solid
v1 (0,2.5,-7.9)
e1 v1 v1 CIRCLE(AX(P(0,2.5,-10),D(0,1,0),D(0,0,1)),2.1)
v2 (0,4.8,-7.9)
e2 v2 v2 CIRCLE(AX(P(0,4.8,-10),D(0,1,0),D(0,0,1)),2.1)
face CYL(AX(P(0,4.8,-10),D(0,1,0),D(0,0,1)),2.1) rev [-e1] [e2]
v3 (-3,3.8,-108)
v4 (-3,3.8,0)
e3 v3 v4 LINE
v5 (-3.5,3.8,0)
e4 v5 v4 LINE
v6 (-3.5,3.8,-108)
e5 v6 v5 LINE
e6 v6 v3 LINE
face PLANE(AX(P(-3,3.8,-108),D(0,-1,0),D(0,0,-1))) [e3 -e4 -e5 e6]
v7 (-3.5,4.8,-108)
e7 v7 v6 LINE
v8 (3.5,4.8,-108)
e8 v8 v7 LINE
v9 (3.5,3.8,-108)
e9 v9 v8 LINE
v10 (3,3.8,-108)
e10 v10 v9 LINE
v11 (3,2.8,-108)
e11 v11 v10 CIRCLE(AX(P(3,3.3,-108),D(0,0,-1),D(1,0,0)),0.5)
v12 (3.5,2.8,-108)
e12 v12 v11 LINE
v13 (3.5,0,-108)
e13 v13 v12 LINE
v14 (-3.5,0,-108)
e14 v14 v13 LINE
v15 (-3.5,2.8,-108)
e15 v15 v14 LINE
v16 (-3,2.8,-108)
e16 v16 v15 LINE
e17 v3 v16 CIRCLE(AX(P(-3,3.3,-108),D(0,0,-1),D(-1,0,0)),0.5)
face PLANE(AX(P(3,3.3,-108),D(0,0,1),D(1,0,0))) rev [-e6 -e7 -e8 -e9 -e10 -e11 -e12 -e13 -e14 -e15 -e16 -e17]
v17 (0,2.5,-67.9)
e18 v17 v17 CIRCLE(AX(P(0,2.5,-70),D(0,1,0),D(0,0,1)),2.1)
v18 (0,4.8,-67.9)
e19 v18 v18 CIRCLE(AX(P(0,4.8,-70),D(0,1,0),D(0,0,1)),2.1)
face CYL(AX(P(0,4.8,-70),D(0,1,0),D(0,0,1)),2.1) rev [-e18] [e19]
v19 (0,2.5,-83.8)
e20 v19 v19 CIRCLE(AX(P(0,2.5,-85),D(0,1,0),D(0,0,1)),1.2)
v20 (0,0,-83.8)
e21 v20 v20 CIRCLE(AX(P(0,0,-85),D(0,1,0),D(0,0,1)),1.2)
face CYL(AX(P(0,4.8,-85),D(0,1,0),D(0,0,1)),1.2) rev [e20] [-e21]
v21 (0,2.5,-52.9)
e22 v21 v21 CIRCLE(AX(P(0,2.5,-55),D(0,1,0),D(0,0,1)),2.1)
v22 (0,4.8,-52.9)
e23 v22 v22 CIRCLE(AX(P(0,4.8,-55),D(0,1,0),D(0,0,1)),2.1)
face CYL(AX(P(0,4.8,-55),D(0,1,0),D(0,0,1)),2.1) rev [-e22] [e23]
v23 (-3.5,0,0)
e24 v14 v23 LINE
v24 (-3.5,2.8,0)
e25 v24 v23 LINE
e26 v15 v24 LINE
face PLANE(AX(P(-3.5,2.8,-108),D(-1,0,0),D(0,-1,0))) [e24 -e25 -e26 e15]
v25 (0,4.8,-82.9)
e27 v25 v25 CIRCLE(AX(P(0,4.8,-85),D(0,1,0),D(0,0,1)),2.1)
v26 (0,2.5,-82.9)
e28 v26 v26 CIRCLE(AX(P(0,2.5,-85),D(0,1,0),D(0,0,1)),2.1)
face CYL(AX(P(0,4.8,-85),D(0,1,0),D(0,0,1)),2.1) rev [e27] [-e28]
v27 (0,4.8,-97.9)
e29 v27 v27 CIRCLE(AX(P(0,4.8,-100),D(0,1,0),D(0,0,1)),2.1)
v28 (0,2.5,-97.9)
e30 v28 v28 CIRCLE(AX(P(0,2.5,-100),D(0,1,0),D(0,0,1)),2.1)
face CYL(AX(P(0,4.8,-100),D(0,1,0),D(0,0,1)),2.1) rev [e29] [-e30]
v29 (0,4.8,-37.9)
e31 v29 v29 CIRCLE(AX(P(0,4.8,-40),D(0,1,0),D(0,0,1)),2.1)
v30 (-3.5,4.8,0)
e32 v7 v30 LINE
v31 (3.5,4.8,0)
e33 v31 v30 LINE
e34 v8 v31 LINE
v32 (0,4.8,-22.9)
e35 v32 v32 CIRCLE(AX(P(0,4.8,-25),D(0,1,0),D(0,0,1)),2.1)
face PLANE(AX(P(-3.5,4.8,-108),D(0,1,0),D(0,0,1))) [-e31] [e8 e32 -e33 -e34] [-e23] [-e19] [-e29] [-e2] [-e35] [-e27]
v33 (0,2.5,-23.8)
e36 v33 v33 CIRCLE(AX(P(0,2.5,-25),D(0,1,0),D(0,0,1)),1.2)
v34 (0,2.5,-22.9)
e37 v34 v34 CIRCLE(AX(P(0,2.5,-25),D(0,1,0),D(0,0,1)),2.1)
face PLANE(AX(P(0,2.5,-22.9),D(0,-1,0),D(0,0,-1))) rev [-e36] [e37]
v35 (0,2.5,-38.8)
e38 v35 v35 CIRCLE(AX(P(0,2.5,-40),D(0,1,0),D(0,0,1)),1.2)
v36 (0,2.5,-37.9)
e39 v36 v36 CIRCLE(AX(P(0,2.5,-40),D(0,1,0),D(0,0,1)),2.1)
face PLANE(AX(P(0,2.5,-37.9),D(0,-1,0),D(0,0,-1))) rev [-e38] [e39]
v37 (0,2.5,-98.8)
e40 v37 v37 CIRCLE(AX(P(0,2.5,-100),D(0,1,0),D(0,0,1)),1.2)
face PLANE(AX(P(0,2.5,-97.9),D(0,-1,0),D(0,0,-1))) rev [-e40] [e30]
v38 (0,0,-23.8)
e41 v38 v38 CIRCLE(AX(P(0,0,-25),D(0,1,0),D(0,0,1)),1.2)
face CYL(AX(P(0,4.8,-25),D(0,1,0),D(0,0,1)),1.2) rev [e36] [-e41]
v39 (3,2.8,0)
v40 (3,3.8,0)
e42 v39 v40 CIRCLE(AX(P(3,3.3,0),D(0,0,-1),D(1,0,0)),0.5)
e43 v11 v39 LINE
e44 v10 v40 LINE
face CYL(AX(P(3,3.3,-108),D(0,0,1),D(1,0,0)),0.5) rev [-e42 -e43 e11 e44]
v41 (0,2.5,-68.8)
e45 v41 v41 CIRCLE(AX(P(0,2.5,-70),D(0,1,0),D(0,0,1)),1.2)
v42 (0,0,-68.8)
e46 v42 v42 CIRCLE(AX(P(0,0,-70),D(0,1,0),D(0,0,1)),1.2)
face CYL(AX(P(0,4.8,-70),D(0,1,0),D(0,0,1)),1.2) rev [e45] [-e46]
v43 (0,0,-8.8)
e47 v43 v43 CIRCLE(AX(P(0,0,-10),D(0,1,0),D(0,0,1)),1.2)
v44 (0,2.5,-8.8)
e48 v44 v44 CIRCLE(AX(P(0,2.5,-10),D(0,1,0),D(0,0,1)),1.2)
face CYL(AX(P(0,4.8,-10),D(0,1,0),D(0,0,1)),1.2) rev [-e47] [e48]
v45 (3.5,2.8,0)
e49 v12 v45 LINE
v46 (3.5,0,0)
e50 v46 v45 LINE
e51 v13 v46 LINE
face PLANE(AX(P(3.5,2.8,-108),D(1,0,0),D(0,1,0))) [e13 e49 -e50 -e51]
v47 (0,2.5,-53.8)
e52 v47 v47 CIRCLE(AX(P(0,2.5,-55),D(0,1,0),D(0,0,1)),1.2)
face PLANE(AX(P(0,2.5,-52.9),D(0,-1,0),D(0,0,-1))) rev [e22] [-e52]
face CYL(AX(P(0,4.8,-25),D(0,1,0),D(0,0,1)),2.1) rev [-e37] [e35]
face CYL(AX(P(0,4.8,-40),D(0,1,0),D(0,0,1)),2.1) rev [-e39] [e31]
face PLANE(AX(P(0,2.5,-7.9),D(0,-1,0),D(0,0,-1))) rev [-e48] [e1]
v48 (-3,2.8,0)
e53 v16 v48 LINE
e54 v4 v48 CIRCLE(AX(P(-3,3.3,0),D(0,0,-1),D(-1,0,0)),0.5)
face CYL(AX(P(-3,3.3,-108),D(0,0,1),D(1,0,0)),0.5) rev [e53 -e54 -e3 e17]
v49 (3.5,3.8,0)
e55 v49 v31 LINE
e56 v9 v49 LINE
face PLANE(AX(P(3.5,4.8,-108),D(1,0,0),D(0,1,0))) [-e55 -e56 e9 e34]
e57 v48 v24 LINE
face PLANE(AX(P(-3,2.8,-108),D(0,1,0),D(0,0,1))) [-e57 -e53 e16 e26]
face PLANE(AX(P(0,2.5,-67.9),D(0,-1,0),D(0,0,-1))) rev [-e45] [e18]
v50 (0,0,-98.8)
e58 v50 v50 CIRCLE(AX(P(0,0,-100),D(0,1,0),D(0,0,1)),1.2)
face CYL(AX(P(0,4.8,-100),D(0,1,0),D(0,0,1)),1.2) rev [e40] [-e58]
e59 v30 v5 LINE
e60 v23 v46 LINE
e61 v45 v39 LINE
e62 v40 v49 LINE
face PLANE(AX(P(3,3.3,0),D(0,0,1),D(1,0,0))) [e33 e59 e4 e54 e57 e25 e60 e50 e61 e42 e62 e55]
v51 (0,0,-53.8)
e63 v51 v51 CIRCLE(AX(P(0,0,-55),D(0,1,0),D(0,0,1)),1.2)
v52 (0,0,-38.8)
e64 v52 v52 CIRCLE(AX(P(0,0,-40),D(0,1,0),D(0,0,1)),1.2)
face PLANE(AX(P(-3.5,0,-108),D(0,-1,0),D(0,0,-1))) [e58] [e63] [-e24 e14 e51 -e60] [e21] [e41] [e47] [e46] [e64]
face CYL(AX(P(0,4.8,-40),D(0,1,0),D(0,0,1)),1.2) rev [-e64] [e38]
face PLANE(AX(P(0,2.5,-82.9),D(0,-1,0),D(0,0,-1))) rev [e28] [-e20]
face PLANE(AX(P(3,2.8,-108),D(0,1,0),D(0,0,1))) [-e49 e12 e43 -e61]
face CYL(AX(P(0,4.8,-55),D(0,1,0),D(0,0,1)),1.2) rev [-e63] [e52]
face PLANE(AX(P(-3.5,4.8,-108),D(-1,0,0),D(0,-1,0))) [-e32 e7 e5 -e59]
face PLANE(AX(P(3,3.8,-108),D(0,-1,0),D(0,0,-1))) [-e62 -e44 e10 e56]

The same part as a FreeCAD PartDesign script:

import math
import FreeCAD as App
import Part
import Sketcher

V = App.Vector
Q = App.Units.Quantity

doc = App.newDocument("Part")
body = doc.addObject("PartDesign::Body", "Body")

# Sketch on XY plane
sketch1 = doc.addObject("Sketcher::SketchObject", "Sketch")
body.addObject(sketch1)
sketch1.AttachmentSupport = (doc.XY_Plane, [""])
sketch1.MapMode = "FlatFace"
sketch1.addGeometry([
    Part.LineSegment(V(-3.5, 0, 0), V(3.5, 0, 0)),  # 0
    Part.LineSegment(V(3.5, 0, 0), V(3.5, 2.8, 0)),  # 1
    Part.LineSegment(V(3.5, 2.8, 0), V(3, 2.8, 0)),  # 2
    Part.ArcOfCircle(Part.Circle(V(3, 3.3, 0), V(0, 0, 1), 0.5), math.radians(90), math.radians(270)),  # 3
    Part.LineSegment(V(3, 3.8, 0), V(3.5, 3.8, 0)),  # 4
    Part.LineSegment(V(3.5, 3.8, 0), V(3.5, 4.8, 0)),  # 5
    Part.LineSegment(V(3.5, 4.8, 0), V(-3.5, 4.8, 0)),  # 6
    Part.LineSegment(V(-3.5, 4.8, 0), V(-3.5, 3.8, 0)),  # 7
    Part.LineSegment(V(-3.5, 3.8, 0), V(-3, 3.8, 0)),  # 8
    Part.ArcOfCircle(Part.Circle(V(-3, 3.3, 0), V(0, 0, 1), 0.5), math.radians(-90), math.radians(90)),  # 9
    Part.LineSegment(V(-3, 2.8, 0), V(-3.5, 2.8, 0)),  # 10
    Part.LineSegment(V(-3.5, 2.8, 0), V(-3.5, 0, 0)),  # 11
], False)
sketch1.addConstraint([
    Sketcher.Constraint("Coincident", 0, 2, 1, 1),
    Sketcher.Constraint("Coincident", 1, 2, 2, 1),
    Sketcher.Constraint("Tangent", 2, 2, 3, 2),
    Sketcher.Constraint("Tangent", 3, 1, 4, 1),
    Sketcher.Constraint("Coincident", 4, 2, 5, 1),
    Sketcher.Constraint("Coincident", 5, 2, 6, 1),
    Sketcher.Constraint("Coincident", 6, 2, 7, 1),
    Sketcher.Constraint("Coincident", 7, 2, 8, 1),
    Sketcher.Constraint("Tangent", 8, 2, 9, 2),
    Sketcher.Constraint("Tangent", 9, 1, 10, 1),
    Sketcher.Constraint("Coincident", 10, 2, 11, 1),
    Sketcher.Constraint("Coincident", 11, 2, 0, 1),
    Sketcher.Constraint("Horizontal", 0),
    Sketcher.Constraint("Vertical", 1),
    Sketcher.Constraint("Horizontal", 2),
    Sketcher.Constraint("Horizontal", 4),
    Sketcher.Constraint("Vertical", 5),
    Sketcher.Constraint("Horizontal", 6),
    Sketcher.Constraint("Vertical", 7),
    Sketcher.Constraint("Horizontal", 8),
    Sketcher.Constraint("Horizontal", 10),
    Sketcher.Constraint("Vertical", 11),
    Sketcher.Constraint("Equal", 3, 9),
    Sketcher.Constraint("Symmetric", 0, 2, 11, 2, -1, 1),
    Sketcher.Constraint("Symmetric", 3, 3, 9, 3, -2),
    Sketcher.Constraint("Vertical", 1, 2, 4, 2),
    Sketcher.Constraint("Vertical", 7, 2, 10, 2),
    Sketcher.Constraint("Radius", 3, Q("0.5 mm")),
    Sketcher.Constraint("DistanceX", 0, 1, 0, 2, Q("7 mm")),
    Sketcher.Constraint("DistanceY", 5, 1, 5, 2, Q("1 mm")),
    Sketcher.Constraint("DistanceX", 2, 2, 2, 1, Q("0.5 mm")),
    Sketcher.Constraint("DistanceY", 1, 1, 1, 2, Q("2.8 mm")),
])
pad1 = doc.addObject("PartDesign::Pad", "Pad")
body.addObject(pad1)
pad1.Profile = sketch1
pad1.Length = 108
pad1.Reversed = True

# Sketch on YZ plane
sketch2 = doc.addObject("Sketcher::SketchObject", "Sketch001")
body.addObject(sketch2)
sketch2.AttachmentSupport = (doc.YZ_Plane, [""])
sketch2.MapMode = "FlatFace"
sketch2.addGeometry([
    Part.LineSegment(V(4.8, -7.9, 0), V(2.5, -7.9, 0)),  # 0
    Part.LineSegment(V(2.5, -7.9, 0), V(2.5, -8.8, 0)),  # 1
    Part.LineSegment(V(2.5, -8.8, 0), V(0, -8.8, 0)),  # 2
    Part.LineSegment(V(0, -8.8, 0), V(0, -10, 0)),  # 3
    Part.LineSegment(V(0, -10, 0), V(4.8, -10, 0)),  # 4
    Part.LineSegment(V(4.8, -10, 0), V(4.8, -7.9, 0)),  # 5
], False)
sketch2.addGeometry(Part.LineSegment(V(4.8, -10, 0), V(0, -10, 0)), True)  # axis
sketch2.addConstraint([
    Sketcher.Constraint("Coincident", 0, 2, 1, 1),
    Sketcher.Constraint("Coincident", 1, 2, 2, 1),
    Sketcher.Constraint("Coincident", 2, 2, 3, 1),
    Sketcher.Constraint("Coincident", 3, 2, 4, 1),
    Sketcher.Constraint("Coincident", 4, 2, 5, 1),
    Sketcher.Constraint("Coincident", 5, 2, 0, 1),
    Sketcher.Constraint("Horizontal", 0),
    Sketcher.Constraint("Vertical", 1),
    Sketcher.Constraint("Horizontal", 2),
    Sketcher.Constraint("Vertical", 3),
    Sketcher.Constraint("Horizontal", 4),
    Sketcher.Constraint("Vertical", 5),
    Sketcher.Constraint("Horizontal", 6),
    Sketcher.Constraint("Coincident", 6, 1, 4, 2),
    Sketcher.Constraint("PointOnObject", 2, 2, -2),
    Sketcher.Constraint("PointOnObject", 6, 2, -2),
    Sketcher.Constraint("DistanceX", 0, 2, 0, 1, Q("2.3 mm")),
    Sketcher.Constraint("DistanceX", 2, 2, 2, 1, Q("2.5 mm")),
    Sketcher.Constraint("DistanceY", 1, 2, 1, 1, Q("0.9 mm")),
    Sketcher.Constraint("DistanceY", 3, 2, 3, 1, Q("1.2 mm")),
    Sketcher.Constraint("DistanceY", 3, 2, -1, 1, Q("10 mm")),
])
groove = doc.addObject("PartDesign::Groove", "Groove")
body.addObject(groove)
groove.Profile = sketch2
groove.ReferenceAxis = (sketch2, ["Axis0"])
groove.Angle = 360
doc.recompute()

linearpattern = doc.addObject("PartDesign::LinearPattern", "LinearPattern")
body.addObject(linearpattern)
linearpattern.Originals = [groove]
linearpattern.Direction = (doc.Z_Axis, [""])
linearpattern.Mode = "offset"
linearpattern.Offset = 15
linearpattern.Occurrences = 7
linearpattern.Reversed = True
body.Tip = linearpattern

doc.recompute()
